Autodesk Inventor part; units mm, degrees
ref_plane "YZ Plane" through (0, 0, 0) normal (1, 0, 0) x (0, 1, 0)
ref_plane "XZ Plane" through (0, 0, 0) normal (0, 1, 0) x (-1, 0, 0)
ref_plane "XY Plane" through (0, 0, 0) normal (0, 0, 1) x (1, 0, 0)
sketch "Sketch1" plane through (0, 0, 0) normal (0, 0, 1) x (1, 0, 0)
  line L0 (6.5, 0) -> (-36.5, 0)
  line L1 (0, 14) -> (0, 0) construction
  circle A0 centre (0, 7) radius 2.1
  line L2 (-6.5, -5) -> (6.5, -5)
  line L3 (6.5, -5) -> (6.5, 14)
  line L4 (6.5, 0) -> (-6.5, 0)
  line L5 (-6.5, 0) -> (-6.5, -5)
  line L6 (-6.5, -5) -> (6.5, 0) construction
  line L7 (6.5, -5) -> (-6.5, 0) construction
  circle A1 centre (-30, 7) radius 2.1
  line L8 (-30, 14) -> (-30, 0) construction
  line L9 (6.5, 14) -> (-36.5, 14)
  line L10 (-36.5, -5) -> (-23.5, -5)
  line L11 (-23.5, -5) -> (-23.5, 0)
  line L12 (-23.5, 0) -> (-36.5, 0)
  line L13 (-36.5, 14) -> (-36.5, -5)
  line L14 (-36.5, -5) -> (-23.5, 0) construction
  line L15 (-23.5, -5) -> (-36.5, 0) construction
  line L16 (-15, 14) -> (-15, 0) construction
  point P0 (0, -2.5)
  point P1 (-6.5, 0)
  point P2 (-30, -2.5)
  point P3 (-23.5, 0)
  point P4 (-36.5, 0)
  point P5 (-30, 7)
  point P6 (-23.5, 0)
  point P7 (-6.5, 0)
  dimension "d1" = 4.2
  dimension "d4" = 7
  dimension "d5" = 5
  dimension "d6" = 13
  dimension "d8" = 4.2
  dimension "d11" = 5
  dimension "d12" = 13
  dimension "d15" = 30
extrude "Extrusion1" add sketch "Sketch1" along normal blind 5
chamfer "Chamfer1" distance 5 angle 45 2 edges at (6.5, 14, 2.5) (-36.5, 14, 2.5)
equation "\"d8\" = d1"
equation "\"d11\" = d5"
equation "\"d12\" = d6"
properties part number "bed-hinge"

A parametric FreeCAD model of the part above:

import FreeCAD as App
import Part
import Sketcher


def edges_at(feature, points):
    """Names of the edges that pass closest to the given points."""
    edges = feature.Shape.Edges
    near = lambda p: min(range(len(edges)), key=lambda i: edges[i].distToShape(Part.Vertex(*p))[0])
    return sorted({f"Edge{near(p) + 1}" for p in points})

doc = App.newDocument("Part")
params = doc.addObject("Spreadsheet::Sheet", "Params")
for row, (alias, value) in enumerate([
    ("sketch1_diameter", "4.2 mm"),
    ("sketch1_width", "13 mm"),
    ("sketch1_height", "5 mm"),
    ("pad1_length", "5 mm"),
    ("chamfer_size", "5 mm"),
], start=1):
    params.set(f"A{row}", alias)
    params.set(f"B{row}", "=" + value)
    params.setAlias(f"B{row}", alias)

body = doc.addObject("PartDesign::Body", "Body")

# Sketch on XY plane
sketch1 = body.newObject("Sketcher::SketchObject", "Sketch")
sketch1.AttachmentSupport = (doc.getObject("XY_Plane"), [""])
sketch1.MapMode = "FlatFace"
sketch1.addGeometry(Part.LineSegment(App.Vector(6.5, -5, 0), App.Vector(6.5, 14, 0)), False)
sketch1.addGeometry(Part.LineSegment(App.Vector(6.5, 14, 0), App.Vector(-36.5, 14, 0)), False)
sketch1.addGeometry(Part.LineSegment(App.Vector(-36.5, 14, 0), App.Vector(-36.5, -5, 0)), False)
sketch1.addGeometry(Part.LineSegment(App.Vector(-36.5, -5, 0), App.Vector(-23.5, -5, 0)), False)
sketch1.addGeometry(Part.LineSegment(App.Vector(-23.5, -5, 0), App.Vector(-23.5, 0, 0)), False)
sketch1.addGeometry(Part.LineSegment(App.Vector(-23.5, 0, 0), App.Vector(-6.5, 0, 0)), False)
sketch1.addGeometry(Part.LineSegment(App.Vector(-6.5, 0, 0), App.Vector(-6.5, -5, 0)), False)
sketch1.addGeometry(Part.LineSegment(App.Vector(-6.5, -5, 0), App.Vector(6.5, -5, 0)), False)
sketch1.addGeometry(Part.Circle(App.Vector(0, 7, 0), App.Vector(0, 0, 1), 2.1), False)
sketch1.addGeometry(Part.Circle(App.Vector(-30, 7, 0), App.Vector(0, 0, 1), 2.1), False)
sketch1.addConstraint(Sketcher.Constraint("Coincident", 0, 2, 1, 1))
sketch1.addConstraint(Sketcher.Constraint("Coincident", 1, 2, 2, 1))
sketch1.addConstraint(Sketcher.Constraint("Coincident", 2, 2, 3, 1))
sketch1.addConstraint(Sketcher.Constraint("Coincident", 3, 2, 4, 1))
sketch1.addConstraint(Sketcher.Constraint("Coincident", 4, 2, 5, 1))
sketch1.addConstraint(Sketcher.Constraint("Coincident", 5, 2, 6, 1))
sketch1.addConstraint(Sketcher.Constraint("Coincident", 6, 2, 7, 1))
sketch1.addConstraint(Sketcher.Constraint("Coincident", 7, 2, 0, 1))
sketch1.addConstraint(Sketcher.Constraint("Vertical", 0))
sketch1.addConstraint(Sketcher.Constraint("Horizontal", 1))
sketch1.addConstraint(Sketcher.Constraint("Vertical", 2))
sketch1.addConstraint(Sketcher.Constraint("Horizontal", 3))
sketch1.addConstraint(Sketcher.Constraint("Vertical", 4))
sketch1.addConstraint(Sketcher.Constraint("Horizontal", 5))
sketch1.addConstraint(Sketcher.Constraint("Vertical", 6))
sketch1.addConstraint(Sketcher.Constraint("Horizontal", 7))
sketch1.addConstraint(Sketcher.Constraint("Equal", 8, 9))
sketch1.addConstraint(Sketcher.Constraint("PointOnObject", 8, 3, -2))
sketch1.addConstraint(Sketcher.Constraint("PointOnObject", 4, 2, -1))
sketch1.addConstraint(Sketcher.Constraint("Horizontal", 8, 3, 9, 3))
sketch1.addConstraint(Sketcher.Constraint("Horizontal", 3, 2, 6, 2))
sketch1.addConstraint(Sketcher.Constraint("Equal", 3, 7))
sketch1.addConstraint(Sketcher.Constraint("Diameter", 8, 4.2))
sketch1.addConstraint(Sketcher.Constraint("DistanceX", 3, 1, 3, 2, 13.0))
sketch1.addConstraint(Sketcher.Constraint("DistanceY", 4, 1, 4, 2, 5.0))
sketch1.addConstraint(Sketcher.Constraint("DistanceY", -1, 1, 8, 3, 7.0))
sketch1.addConstraint(Sketcher.Constraint("DistanceX", 9, 3, -1, 1, 30.0))
sketch1.addConstraint(Sketcher.Constraint("DistanceY", 8, 3, 0, 2, 7.0))
sketch1.addConstraint(Sketcher.Constraint("DistanceX", 3, 2, 0, 2, 30.0))
sketch1.addConstraint(Sketcher.Constraint("DistanceX", -1, 1, 0, 2, 6.5))
sketch1.setExpression("Constraints[22]", "Params.sketch1_diameter")
sketch1.setExpression("Constraints[23]", "Params.sketch1_width")
sketch1.setExpression("Constraints[24]", "Params.sketch1_height")
pad1 = body.newObject("PartDesign::Pad", "Pad")
pad1.Profile = sketch1
pad1.setExpression("Length", "Params.pad1_length")
doc.recompute()

chamfer = body.newObject("PartDesign::Chamfer", "Chamfer")
chamfer.Base = (pad1, edges_at(pad1, [(6.5, 14, 2.5), (-36.5, 14, 2.5)]))
chamfer.setExpression("Size", "Params.chamfer_size")

doc.recompute()
